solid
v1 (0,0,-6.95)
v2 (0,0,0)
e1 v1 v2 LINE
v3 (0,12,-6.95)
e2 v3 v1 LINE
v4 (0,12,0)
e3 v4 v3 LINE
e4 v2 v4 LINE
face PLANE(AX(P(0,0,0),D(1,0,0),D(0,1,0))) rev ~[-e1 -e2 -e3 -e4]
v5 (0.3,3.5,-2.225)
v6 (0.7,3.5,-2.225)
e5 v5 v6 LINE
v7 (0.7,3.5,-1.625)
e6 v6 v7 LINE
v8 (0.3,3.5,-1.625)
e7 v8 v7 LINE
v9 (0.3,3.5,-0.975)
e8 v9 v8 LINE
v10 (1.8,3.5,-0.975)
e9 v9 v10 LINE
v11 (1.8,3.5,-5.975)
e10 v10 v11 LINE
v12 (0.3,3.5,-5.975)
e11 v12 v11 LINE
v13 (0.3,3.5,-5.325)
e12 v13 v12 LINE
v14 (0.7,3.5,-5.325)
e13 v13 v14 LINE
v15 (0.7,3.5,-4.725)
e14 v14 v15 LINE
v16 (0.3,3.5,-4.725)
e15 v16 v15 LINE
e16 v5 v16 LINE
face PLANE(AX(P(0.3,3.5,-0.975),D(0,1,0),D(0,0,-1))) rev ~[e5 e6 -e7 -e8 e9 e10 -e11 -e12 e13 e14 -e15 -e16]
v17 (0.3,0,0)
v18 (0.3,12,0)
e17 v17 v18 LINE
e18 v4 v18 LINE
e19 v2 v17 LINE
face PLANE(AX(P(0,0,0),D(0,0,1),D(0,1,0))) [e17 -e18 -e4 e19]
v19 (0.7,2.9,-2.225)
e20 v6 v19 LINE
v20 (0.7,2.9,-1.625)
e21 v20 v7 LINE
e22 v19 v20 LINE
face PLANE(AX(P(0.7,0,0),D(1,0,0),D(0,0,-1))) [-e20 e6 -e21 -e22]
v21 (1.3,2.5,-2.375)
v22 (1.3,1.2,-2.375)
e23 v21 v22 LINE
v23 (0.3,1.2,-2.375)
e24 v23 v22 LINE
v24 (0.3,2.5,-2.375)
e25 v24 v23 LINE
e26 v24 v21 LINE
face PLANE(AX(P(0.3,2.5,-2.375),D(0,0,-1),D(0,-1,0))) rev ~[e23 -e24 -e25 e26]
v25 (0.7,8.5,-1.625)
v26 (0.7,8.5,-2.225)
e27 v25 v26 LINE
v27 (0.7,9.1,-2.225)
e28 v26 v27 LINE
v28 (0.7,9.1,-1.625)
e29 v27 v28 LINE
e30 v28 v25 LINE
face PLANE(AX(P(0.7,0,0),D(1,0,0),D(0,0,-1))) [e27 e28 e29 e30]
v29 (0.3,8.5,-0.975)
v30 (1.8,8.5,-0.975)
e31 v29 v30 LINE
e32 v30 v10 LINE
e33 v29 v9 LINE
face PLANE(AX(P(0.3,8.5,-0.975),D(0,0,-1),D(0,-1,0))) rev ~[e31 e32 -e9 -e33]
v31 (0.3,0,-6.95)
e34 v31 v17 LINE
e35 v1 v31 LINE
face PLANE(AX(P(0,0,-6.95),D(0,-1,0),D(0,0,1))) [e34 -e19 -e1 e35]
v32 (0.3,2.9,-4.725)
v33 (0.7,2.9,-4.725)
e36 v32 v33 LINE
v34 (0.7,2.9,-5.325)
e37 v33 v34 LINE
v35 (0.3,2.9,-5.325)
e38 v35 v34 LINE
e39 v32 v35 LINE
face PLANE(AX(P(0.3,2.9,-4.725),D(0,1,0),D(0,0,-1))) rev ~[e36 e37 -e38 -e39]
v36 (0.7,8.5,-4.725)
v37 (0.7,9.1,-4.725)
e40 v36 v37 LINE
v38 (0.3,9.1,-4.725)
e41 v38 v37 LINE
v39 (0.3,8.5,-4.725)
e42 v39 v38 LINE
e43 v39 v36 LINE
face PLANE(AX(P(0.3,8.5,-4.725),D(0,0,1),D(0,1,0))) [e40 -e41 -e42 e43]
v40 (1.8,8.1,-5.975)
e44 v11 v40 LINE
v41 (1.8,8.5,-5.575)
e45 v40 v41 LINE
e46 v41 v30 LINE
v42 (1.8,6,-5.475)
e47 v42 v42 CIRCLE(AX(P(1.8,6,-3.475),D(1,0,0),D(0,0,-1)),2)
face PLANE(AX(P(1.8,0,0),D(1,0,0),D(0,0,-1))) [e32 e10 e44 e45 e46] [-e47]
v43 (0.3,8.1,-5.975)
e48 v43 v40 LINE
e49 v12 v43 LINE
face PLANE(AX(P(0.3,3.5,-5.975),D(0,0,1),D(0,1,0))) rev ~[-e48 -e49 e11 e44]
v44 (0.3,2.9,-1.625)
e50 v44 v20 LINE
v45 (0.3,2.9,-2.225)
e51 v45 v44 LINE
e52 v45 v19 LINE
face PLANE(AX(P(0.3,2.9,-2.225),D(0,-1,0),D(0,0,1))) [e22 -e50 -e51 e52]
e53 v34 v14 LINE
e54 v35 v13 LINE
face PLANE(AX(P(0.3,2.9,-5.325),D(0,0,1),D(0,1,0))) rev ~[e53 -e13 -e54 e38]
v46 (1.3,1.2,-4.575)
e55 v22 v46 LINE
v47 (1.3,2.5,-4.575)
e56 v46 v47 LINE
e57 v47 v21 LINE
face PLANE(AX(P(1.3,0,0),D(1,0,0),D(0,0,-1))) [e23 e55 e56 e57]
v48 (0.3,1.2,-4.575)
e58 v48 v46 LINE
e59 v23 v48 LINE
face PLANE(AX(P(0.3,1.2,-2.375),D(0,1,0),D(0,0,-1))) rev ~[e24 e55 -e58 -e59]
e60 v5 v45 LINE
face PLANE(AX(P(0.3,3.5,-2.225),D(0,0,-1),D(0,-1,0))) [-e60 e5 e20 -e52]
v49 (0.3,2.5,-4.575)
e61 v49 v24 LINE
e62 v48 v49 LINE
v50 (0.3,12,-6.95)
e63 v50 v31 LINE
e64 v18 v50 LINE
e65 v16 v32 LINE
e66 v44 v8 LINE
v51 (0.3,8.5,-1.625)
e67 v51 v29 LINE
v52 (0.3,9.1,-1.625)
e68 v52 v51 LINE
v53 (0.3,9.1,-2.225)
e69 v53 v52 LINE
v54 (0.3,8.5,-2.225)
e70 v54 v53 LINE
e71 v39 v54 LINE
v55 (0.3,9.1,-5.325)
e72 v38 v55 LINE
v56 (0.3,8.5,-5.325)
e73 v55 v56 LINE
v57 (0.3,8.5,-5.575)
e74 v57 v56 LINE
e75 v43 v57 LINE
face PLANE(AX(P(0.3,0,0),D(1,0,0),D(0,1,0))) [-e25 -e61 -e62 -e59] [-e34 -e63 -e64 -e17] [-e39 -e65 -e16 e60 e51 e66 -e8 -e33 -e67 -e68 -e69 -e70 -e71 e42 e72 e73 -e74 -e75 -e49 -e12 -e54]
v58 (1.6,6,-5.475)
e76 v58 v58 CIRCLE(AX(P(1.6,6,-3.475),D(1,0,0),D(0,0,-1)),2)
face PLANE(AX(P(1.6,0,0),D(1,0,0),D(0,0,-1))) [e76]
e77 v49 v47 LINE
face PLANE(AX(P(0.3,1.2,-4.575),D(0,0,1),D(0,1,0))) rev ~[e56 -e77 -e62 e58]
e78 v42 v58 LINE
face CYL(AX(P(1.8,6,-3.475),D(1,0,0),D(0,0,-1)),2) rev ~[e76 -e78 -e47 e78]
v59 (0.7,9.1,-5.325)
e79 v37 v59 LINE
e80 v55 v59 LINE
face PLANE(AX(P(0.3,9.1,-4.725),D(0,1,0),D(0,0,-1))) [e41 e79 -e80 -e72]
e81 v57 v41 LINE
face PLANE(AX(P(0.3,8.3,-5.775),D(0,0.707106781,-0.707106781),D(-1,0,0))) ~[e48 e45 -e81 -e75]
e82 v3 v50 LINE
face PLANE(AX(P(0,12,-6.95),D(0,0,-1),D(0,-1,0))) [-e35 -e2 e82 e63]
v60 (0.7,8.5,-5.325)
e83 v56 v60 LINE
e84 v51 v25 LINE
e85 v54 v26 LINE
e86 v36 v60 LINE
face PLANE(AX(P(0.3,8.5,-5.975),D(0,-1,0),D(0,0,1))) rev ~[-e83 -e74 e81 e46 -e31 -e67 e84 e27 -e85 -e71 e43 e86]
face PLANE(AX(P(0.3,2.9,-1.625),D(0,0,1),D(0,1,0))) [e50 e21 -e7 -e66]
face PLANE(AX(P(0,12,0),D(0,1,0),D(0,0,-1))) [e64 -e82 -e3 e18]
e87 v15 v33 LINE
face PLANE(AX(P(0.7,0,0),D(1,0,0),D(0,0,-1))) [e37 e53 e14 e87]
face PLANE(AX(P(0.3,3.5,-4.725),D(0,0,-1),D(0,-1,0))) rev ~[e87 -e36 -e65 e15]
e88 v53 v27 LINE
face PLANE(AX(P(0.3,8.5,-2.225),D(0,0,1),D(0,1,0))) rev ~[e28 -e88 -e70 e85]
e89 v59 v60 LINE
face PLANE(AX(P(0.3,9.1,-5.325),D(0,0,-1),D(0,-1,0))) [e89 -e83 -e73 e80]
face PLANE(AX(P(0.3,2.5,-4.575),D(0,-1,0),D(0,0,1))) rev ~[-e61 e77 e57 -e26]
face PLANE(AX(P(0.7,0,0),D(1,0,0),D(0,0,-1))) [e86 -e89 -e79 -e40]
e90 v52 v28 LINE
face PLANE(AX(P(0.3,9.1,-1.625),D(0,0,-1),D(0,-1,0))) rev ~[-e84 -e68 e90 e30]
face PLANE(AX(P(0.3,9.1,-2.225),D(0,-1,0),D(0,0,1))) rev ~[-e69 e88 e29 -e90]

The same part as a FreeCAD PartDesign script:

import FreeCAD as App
import Part
import Sketcher
Q = App.Units.Quantity


def edges_at(feature, points):
    """Names of the edges that pass closest to the given points."""
    edges = feature.Shape.Edges
    near = lambda p: min(range(len(edges)), key=lambda i: edges[i].distToShape(Part.Vertex(*p))[0])
    return sorted({f"Edge{near(p) + 1}" for p in points})

doc = App.newDocument("Part")
body = doc.addObject("PartDesign::Body", "Body")

# Sketch on YZ plane
sketch1 = body.newObject("Sketcher::SketchObject", "Sketch")
sketch1.AttachmentSupport = (doc.getObject("YZ_Plane"), [""])
sketch1.MapMode = "FlatFace"
sketch1.addGeometry([
    Part.LineSegment(App.Vector(12, 0, 0), App.Vector(0, 0, 0)),
    Part.LineSegment(App.Vector(0, 0, 0), App.Vector(0, -7, 0)),
    Part.LineSegment(App.Vector(0, -7, 0), App.Vector(12, -7, 0)),
    Part.LineSegment(App.Vector(12, -7, 0), App.Vector(12, 0, 0)),
], False)
sketch1.addConstraint([
    Sketcher.Constraint("Coincident", 0, 2, 1, 1),
    Sketcher.Constraint("Coincident", 1, 2, 2, 1),
    Sketcher.Constraint("Coincident", 2, 2, 3, 1),
    Sketcher.Constraint("Coincident", 3, 2, 0, 1),
    Sketcher.Constraint("Horizontal", 0),
    Sketcher.Constraint("Vertical", 1),
    Sketcher.Constraint("Horizontal", 2),
    Sketcher.Constraint("Vertical", 3),
    Sketcher.Constraint("Coincident", 0, 2, -1, 1),
    Sketcher.Constraint("DistanceX", 0, 2, 0, 1, Q("12 mm")),
    Sketcher.Constraint("DistanceY", 1, 2, 1, 1, Q("6.95 mm")),
])
pad1 = body.newObject("PartDesign::Pad", "Pad")
pad1.Profile = sketch1
pad1.Length = 0.3

# Sketch on YZ plane
sketch2 = body.newObject("Sketcher::SketchObject", "Sketch001")
sketch2.AttachmentSupport = (doc.getObject("YZ_Plane"), [""])
sketch2.MapMode = "FlatFace"
sketch2.AttachmentOffset = App.Placement(App.Vector(0, 0, 0.3), App.Rotation())
sketch2.addGeometry([
    Part.LineSegment(App.Vector(8, -1, 0), App.Vector(4, -1, 0)),
    Part.LineSegment(App.Vector(4, -1, 0), App.Vector(4, -6, 0)),
    Part.LineSegment(App.Vector(4, -6, 0), App.Vector(8, -6, 0)),
    Part.LineSegment(App.Vector(8, -6, 0), App.Vector(8, -1, 0)),
], False)
sketch2.addConstraint([
    Sketcher.Constraint("Coincident", 0, 2, 1, 1),
    Sketcher.Constraint("Coincident", 1, 2, 2, 1),
    Sketcher.Constraint("Coincident", 2, 2, 3, 1),
    Sketcher.Constraint("Coincident", 3, 2, 0, 1),
    Sketcher.Constraint("Horizontal", 0),
    Sketcher.Constraint("Vertical", 1),
    Sketcher.Constraint("Horizontal", 2),
    Sketcher.Constraint("Vertical", 3),
    Sketcher.Constraint("Equal", 2, 1),
    Sketcher.Constraint("DistanceX", 0, 2, 0, 1, Q("5 mm")),
    Sketcher.Constraint("DistanceX", -1, 1, 0, 2, Q("3.5 mm")),
    Sketcher.Constraint("DistanceY", 0, 2, -1, 1, Q("0.975 mm")),
])
pad2 = body.newObject("PartDesign::Pad", "Pad001")
pad2.Profile = sketch2
pad2.Length = 1.5

# Sketch on YZ plane
sketch3 = body.newObject("Sketcher::SketchObject", "Sketch002")
sketch3.AttachmentSupport = (doc.getObject("YZ_Plane"), [""])
sketch3.MapMode = "FlatFace"
sketch3.AttachmentOffset = App.Placement(App.Vector(0, 0, 1.8), App.Rotation())
sketch3.addGeometry(Part.Circle(App.Vector(6, -3.5, 0), App.Vector(0, 0, 1), 2), False)
sketch3.addConstraint([
    Sketcher.Constraint("Diameter", 0, Q("4 mm")),
    Sketcher.Constraint("DistanceX", -1, 1, 0, 3, Q("6 mm")),
    Sketcher.Constraint("DistanceY", 0, 3, -1, 1, Q("3.475 mm")),
])
pocket1 = body.newObject("PartDesign::Pocket", "Pocket")
pocket1.Profile = sketch3
pocket1.Length = 0.2
doc.recompute()

chamfer = body.newObject("PartDesign::Chamfer", "Chamfer")
chamfer.Base = (pocket1, edges_at(pocket1, [(1.05, 8.5, -5.975)]))
chamfer.Size = 0.4

# Sketch on YZ plane
sketch4 = body.newObject("Sketcher::SketchObject", "Sketch003")
sketch4.AttachmentSupport = (doc.getObject("YZ_Plane"), [""])
sketch4.MapMode = "FlatFace"
sketch4.AttachmentOffset = App.Placement(App.Vector(0, 0, 0.3), App.Rotation())
sketch4.addGeometry([
    Part.LineSegment(App.Vector(9.1, -4.7, 0), App.Vector(8.5, -4.7, 0)),  # 0
    Part.LineSegment(App.Vector(8.5, -4.7, 0), App.Vector(8.5, -5.3, 0)),  # 1
    Part.LineSegment(App.Vector(8.5, -5.3, 0), App.Vector(9.1, -5.3, 0)),  # 2
    Part.LineSegment(App.Vector(9.1, -5.3, 0), App.Vector(9.1, -4.7, 0)),  # 3
    Part.LineSegment(App.Vector(2.9, -5.3, 0), App.Vector(3.5, -5.3, 0)),  # 4
    Part.LineSegment(App.Vector(3.5, -5.3, 0), App.Vector(3.5, -4.7, 0)),  # 5
    Part.LineSegment(App.Vector(3.5, -4.7, 0), App.Vector(2.9, -4.7, 0)),  # 6
    Part.LineSegment(App.Vector(2.9, -4.7, 0), App.Vector(2.9, -5.3, 0)),  # 7
    Part.LineSegment(App.Vector(2.9, -2.2, 0), App.Vector(3.5, -2.2, 0)),  # 8
    Part.LineSegment(App.Vector(3.5, -2.2, 0), App.Vector(3.5, -1.6, 0)),  # 9
    Part.LineSegment(App.Vector(3.5, -1.6, 0), App.Vector(2.9, -1.6, 0)),  # 10
    Part.LineSegment(App.Vector(2.9, -1.6, 0), App.Vector(2.9, -2.2, 0)),  # 11
    Part.LineSegment(App.Vector(8.5, -1.6, 0), App.Vector(8.5, -2.2, 0)),  # 12
    Part.LineSegment(App.Vector(8.5, -2.2, 0), App.Vector(9.1, -2.2, 0)),  # 13
    Part.LineSegment(App.Vector(9.1, -2.2, 0), App.Vector(9.1, -1.6, 0)),  # 14
    Part.LineSegment(App.Vector(9.1, -1.6, 0), App.Vector(8.5, -1.6, 0)),  # 15
], False)
sketch4.addConstraint([
    Sketcher.Constraint("Coincident", 0, 2, 1, 1),
    Sketcher.Constraint("Coincident", 1, 2, 2, 1),
    Sketcher.Constraint("Coincident", 2, 2, 3, 1),
    Sketcher.Constraint("Coincident", 3, 2, 0, 1),
    Sketcher.Constraint("Coincident", 4, 2, 5, 1),
    Sketcher.Constraint("Coincident", 5, 2, 6, 1),
    Sketcher.Constraint("Coincident", 6, 2, 7, 1),
    Sketcher.Constraint("Coincident", 7, 2, 4, 1),
    Sketcher.Constraint("Coincident", 8, 2, 9, 1),
    Sketcher.Constraint("Coincident", 9, 2, 10, 1),
    Sketcher.Constraint("Coincident", 10, 2, 11, 1),
    Sketcher.Constraint("Coincident", 11, 2, 8, 1),
    Sketcher.Constraint("Coincident", 12, 2, 13, 1),
    Sketcher.Constraint("Coincident", 13, 2, 14, 1),
    Sketcher.Constraint("Coincident", 14, 2, 15, 1),
    Sketcher.Constraint("Coincident", 15, 2, 12, 1),
    Sketcher.Constraint("Horizontal", 0),
    Sketcher.Constraint("Vertical", 1),
    Sketcher.Constraint("Horizontal", 2),
    Sketcher.Constraint("Vertical", 3),
    Sketcher.Constraint("Horizontal", 4),
    Sketcher.Constraint("Vertical", 5),
    Sketcher.Constraint("Horizontal", 6),
    Sketcher.Constraint("Vertical", 7),
    Sketcher.Constraint("Horizontal", 8),
    Sketcher.Constraint("Vertical", 9),
    Sketcher.Constraint("Horizontal", 10),
    Sketcher.Constraint("Vertical", 11),
    Sketcher.Constraint("Vertical", 12),
    Sketcher.Constraint("Horizontal", 13),
    Sketcher.Constraint("Vertical", 14),
    Sketcher.Constraint("Horizontal", 15),
    Sketcher.Constraint("Horizontal", 2, 2, 4, 2),
    Sketcher.Constraint("Horizontal", 3, 2, 5, 2),
    Sketcher.Constraint("Horizontal", 11, 2, 12, 2),
    Sketcher.Constraint("Horizontal", 10, 2, 14, 2),
    Sketcher.Constraint("Vertical", 5, 2, 8, 2),
    Sketcher.Constraint("Vertical", 7, 2, 10, 2),
    Sketcher.Constraint("Vertical", 1, 2, 12, 2),
    Sketcher.Constraint("Vertical", 3, 2, 13, 2),
    Sketcher.Constraint("Equal", 2, 4),
    Sketcher.Constraint("Equal", 15, 1),
    Sketcher.Constraint("Equal", 7, 9),
    Sketcher.Constraint("DistanceX", 0, 2, 0, 1, Q("0.6 mm")),
    Sketcher.Constraint("DistanceY", 5, 2, 8, 2, Q("2.5 mm")),
    Sketcher.Constraint("DistanceX", 4, 2, 1, 2, Q("5 mm")),
    Sketcher.Constraint("DistanceX", -1, 1, 0, 2, Q("8.5 mm")),
    Sketcher.Constraint("DistanceY", 0, 2, -1, 1, Q("4.725 mm")),
])
pad3 = body.newObject("PartDesign::Pad", "Pad002")
pad3.Profile = sketch4
pad3.Length = 0.4

# Sketch on YZ plane
sketch5 = body.newObject("Sketcher::SketchObject", "Sketch004")
sketch5.AttachmentSupport = (doc.getObject("YZ_Plane"), [""])
sketch5.MapMode = "FlatFace"
sketch5.AttachmentOffset = App.Placement(App.Vector(0, 0, 0.3), App.Rotation())
sketch5.addGeometry([
    Part.LineSegment(App.Vector(2.5, -2.4, 0), App.Vector(1.2, -2.4, 0)),
    Part.LineSegment(App.Vector(1.2, -2.4, 0), App.Vector(1.2, -4.6, 0)),
    Part.LineSegment(App.Vector(1.2, -4.6, 0), App.Vector(2.5, -4.6, 0)),
    Part.LineSegment(App.Vector(2.5, -4.6, 0), App.Vector(2.5, -2.4, 0)),
], False)
sketch5.addConstraint([
    Sketcher.Constraint("Coincident", 0, 2, 1, 1),
    Sketcher.Constraint("Coincident", 1, 2, 2, 1),
    Sketcher.Constraint("Coincident", 2, 2, 3, 1),
    Sketcher.Constraint("Coincident", 3, 2, 0, 1),
    Sketcher.Constraint("Horizontal", 0),
    Sketcher.Constraint("Vertical", 1),
    Sketcher.Constraint("Horizontal", 2),
    Sketcher.Constraint("Vertical", 3),
    Sketcher.Constraint("DistanceY", 1, 2, 1, 1, Q("2.2 mm")),
    Sketcher.Constraint("DistanceX", -1, 1, 0, 2, Q("1.2 mm")),
    Sketcher.Constraint("DistanceX", -1, 1, 2, 2, Q("2.5 mm")),
    Sketcher.Constraint("DistanceY", 0, 2, -1, 1, Q("2.375 mm")),
])
pad4 = body.newObject("PartDesign::Pad", "Pad003")
pad4.Profile = sketch5
pad4.Length = 1

doc.recompute()
